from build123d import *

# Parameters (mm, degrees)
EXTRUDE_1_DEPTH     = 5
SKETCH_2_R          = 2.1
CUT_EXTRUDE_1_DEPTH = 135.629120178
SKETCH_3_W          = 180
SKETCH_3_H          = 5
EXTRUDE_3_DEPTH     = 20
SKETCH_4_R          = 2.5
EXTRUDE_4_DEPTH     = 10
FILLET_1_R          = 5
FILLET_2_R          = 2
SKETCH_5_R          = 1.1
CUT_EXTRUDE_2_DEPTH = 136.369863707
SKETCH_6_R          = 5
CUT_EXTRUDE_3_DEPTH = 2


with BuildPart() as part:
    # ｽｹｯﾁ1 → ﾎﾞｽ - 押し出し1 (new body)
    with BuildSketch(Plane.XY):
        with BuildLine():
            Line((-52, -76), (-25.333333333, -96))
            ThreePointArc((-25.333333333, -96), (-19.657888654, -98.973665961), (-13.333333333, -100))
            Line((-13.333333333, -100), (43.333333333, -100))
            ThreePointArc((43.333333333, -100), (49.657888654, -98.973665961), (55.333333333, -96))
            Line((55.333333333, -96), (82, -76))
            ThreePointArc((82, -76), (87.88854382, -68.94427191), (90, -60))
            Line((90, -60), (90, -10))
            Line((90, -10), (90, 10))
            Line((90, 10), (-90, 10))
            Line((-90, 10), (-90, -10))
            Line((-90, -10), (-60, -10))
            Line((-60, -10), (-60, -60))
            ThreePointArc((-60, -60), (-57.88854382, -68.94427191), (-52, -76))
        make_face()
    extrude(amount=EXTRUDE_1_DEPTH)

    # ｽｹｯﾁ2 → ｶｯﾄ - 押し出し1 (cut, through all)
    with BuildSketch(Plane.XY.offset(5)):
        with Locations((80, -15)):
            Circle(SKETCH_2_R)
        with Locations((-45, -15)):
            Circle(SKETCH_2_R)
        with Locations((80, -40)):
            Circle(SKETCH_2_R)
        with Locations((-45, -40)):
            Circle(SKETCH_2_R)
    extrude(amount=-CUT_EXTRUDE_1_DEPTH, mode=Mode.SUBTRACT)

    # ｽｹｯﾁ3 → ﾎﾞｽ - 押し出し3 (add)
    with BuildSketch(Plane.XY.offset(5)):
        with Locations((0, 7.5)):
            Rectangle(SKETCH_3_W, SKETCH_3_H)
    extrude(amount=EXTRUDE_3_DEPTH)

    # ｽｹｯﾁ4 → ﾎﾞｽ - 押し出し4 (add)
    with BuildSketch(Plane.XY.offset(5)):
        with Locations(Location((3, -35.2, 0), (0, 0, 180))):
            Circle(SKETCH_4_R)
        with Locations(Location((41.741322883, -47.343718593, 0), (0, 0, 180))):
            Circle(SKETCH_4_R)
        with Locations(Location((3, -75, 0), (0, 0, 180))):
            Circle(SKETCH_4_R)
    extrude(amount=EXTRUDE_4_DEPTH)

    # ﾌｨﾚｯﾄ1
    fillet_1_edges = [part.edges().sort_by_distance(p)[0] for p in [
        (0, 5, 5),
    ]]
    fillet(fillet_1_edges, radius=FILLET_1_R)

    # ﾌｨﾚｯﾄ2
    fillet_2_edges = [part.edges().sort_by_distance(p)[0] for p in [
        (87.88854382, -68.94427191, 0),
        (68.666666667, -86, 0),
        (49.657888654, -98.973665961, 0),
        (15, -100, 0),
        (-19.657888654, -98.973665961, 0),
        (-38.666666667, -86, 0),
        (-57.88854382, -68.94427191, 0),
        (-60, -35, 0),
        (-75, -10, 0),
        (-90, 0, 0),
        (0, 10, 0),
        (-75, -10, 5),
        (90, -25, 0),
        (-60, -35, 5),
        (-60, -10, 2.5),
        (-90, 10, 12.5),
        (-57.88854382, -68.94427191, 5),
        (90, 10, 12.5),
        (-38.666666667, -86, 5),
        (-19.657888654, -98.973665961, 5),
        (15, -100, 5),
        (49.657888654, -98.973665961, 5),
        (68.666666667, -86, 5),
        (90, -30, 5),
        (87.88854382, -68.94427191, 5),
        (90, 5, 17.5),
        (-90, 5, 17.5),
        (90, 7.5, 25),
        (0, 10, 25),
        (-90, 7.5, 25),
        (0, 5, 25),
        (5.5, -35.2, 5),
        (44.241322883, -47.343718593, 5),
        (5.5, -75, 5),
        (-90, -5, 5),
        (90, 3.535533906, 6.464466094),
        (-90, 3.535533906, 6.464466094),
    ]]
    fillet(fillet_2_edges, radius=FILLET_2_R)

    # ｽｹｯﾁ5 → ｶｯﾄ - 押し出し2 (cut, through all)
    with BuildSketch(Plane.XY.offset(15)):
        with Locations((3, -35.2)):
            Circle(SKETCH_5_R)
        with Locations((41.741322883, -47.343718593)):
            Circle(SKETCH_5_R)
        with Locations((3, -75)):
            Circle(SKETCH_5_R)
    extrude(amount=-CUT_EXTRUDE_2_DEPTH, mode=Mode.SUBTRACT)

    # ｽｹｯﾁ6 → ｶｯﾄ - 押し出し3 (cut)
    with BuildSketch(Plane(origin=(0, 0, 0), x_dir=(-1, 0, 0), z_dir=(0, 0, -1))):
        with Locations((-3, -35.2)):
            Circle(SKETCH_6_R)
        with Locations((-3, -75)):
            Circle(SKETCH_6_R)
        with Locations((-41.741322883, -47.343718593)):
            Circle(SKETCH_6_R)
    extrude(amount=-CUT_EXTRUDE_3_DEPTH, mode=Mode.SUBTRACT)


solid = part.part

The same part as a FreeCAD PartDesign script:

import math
import FreeCAD as App
import Part
import Sketcher
from FreeCAD import Vector
Q = App.Units.Quantity


def edges_at(feature, points):
    """Names of the edges that pass closest to the given points."""
    edges = feature.Shape.Edges
    near = lambda p: min(range(len(edges)), key=lambda i: edges[i].distToShape(Part.Vertex(*p))[0])
    return sorted({f"Edge{near(p) + 1}" for p in points})


def add_polygon(sketch, points):
    """Adds a closed chain of lines whose ends are joined by coincident constraints."""
    first, n = sketch.GeometryCount, len(points)
    for a, b in zip(points, points[1:] + points[:1]):
        sketch.addGeometry(Part.LineSegment(App.Vector(*a, 0), App.Vector(*b, 0)), False)
    for i in range(n):
        sketch.addConstraint(Sketcher.Constraint("Coincident", first + i, 2, first + (i + 1) % n, 1))

doc = App.newDocument("Part")
body = doc.addObject("PartDesign::Body", "Body")

# Sketch on XY plane
sketch1 = body.newObject("Sketcher::SketchObject", "Sketch")
sketch1.AttachmentSupport = (doc.getObject("XY_Plane"), [""])
sketch1.MapMode = "FlatFace"
sketch1.addGeometry(Part.LineSegment(Vector(-52, -76, 0), Vector(-25, -96, 0)), False)
sketch1.addGeometry(Part.ArcOfCircle(Part.Circle(Vector(-13, -80, 0), Vector(0, 0, 1), 20), math.radians(-127), math.radians(-90)), False)
sketch1.addGeometry(Part.LineSegment(Vector(-13, -100, 0), Vector(43, -100, 0)), False)
sketch1.addGeometry(Part.ArcOfCircle(Part.Circle(Vector(43, -80, 0), Vector(0, 0, 1), 20), math.radians(-90), math.radians(-53)), False)
sketch1.addGeometry(Part.LineSegment(Vector(55, -96, 0), Vector(82, -76, 0)), False)
sketch1.addGeometry(Part.ArcOfCircle(Part.Circle(Vector(70, -60, 0), Vector(0, 0, 1), 20), math.radians(-53), math.radians(0)), False)
sketch1.addGeometry(Part.LineSegment(Vector(90, -60, 0), Vector(90, 10, 0)), False)
sketch1.addGeometry(Part.LineSegment(Vector(90, 10, 0), Vector(-90, 10, 0)), False)
sketch1.addGeometry(Part.LineSegment(Vector(-90, 10, 0), Vector(-90, -10, 0)), False)
sketch1.addGeometry(Part.LineSegment(Vector(-90, -10, 0), Vector(-60, -10, 0)), False)
sketch1.addGeometry(Part.LineSegment(Vector(-60, -10, 0), Vector(-60, -60, 0)), False)
sketch1.addGeometry(Part.ArcOfCircle(Part.Circle(Vector(-40, -60, 0), Vector(0, 0, 1), 20), math.radians(180), math.radians(233)), False)
sketch1.addConstraint(Sketcher.Constraint("Tangent", 0, 2, 1, 1))
sketch1.addConstraint(Sketcher.Constraint("Tangent", 1, 2, 2, 1))
sketch1.addConstraint(Sketcher.Constraint("Tangent", 2, 2, 3, 1))
sketch1.addConstraint(Sketcher.Constraint("Tangent", 3, 2, 4, 1))
sketch1.addConstraint(Sketcher.Constraint("Tangent", 4, 2, 5, 1))
sketch1.addConstraint(Sketcher.Constraint("Tangent", 5, 2, 6, 1))
sketch1.addConstraint(Sketcher.Constraint("Coincident", 6, 2, 7, 1))
sketch1.addConstraint(Sketcher.Constraint("Coincident", 7, 2, 8, 1))
sketch1.addConstraint(Sketcher.Constraint("Coincident", 8, 2, 9, 1))
sketch1.addConstraint(Sketcher.Constraint("Coincident", 9, 2, 10, 1))
sketch1.addConstraint(Sketcher.Constraint("Tangent", 10, 2, 11, 1))
sketch1.addConstraint(Sketcher.Constraint("Tangent", 11, 2, 0, 1))
sketch1.addConstraint(Sketcher.Constraint("Horizontal", 2))
sketch1.addConstraint(Sketcher.Constraint("Vertical", 6))
sketch1.addConstraint(Sketcher.Constraint("Horizontal", 7))
sketch1.addConstraint(Sketcher.Constraint("Vertical", 8))
sketch1.addConstraint(Sketcher.Constraint("Horizontal", 9))
sketch1.addConstraint(Sketcher.Constraint("Vertical", 10))
sketch1.addConstraint(Sketcher.Constraint("Equal", 1, 3))
sketch1.addConstraint(Sketcher.Constraint("Equal", 3, 5))
sketch1.addConstraint(Sketcher.Constraint("Equal", 5, 11))
sketch1.addConstraint(Sketcher.Constraint("Symmetric", 6, 2, 8, 2, -1, 1))
sketch1.addConstraint(Sketcher.Constraint("Horizontal", 5, 3, 11, 3))
sketch1.addConstraint(Sketcher.Constraint("Horizontal", 0, 2, 3, 2))
sketch1.addConstraint(Sketcher.Constraint("Radius", 1, Q("20 mm")))
sketch1.addConstraint(Sketcher.Constraint("DistanceX", 7, 2, 7, 1, Q("180 mm")))
sketch1.addConstraint(Sketcher.Constraint("DistanceX", 9, 1, 9, 2, Q("30 mm")))
sketch1.addConstraint(Sketcher.Constraint("DistanceY", 6, 1, 6, 2, Q("70 mm")))
sketch1.addConstraint(Sketcher.Constraint("DistanceY", 8, 2, 8, 1, Q("20 mm")))
sketch1.addConstraint(Sketcher.Constraint("DistanceY", 1, 3, -1, 1, Q("80 mm")))
sketch1.addConstraint(Sketcher.Constraint("DistanceY", 0, 2, -1, 1, Q("96 mm")))
pad1 = body.newObject("PartDesign::Pad", "Pad")
pad1.Profile = sketch1
pad1.Length = 5

# Sketch on XY plane
sketch2 = body.newObject("Sketcher::SketchObject", "Sketch001")
sketch2.AttachmentSupport = (doc.getObject("XY_Plane"), [""])
sketch2.MapMode = "FlatFace"
sketch2.AttachmentOffset = App.Placement(Vector(0, 0, 5), App.Rotation())
sketch2.addGeometry(Part.Circle(Vector(80, -15, 0), Vector(0, 0, 1), 2.1), False)
sketch2.addGeometry(Part.Circle(Vector(-45, -15, 0), Vector(0, 0, 1), 2.1), False)
sketch2.addGeometry(Part.Circle(Vector(80, -40, 0), Vector(0, 0, 1), 2.1), False)
sketch2.addGeometry(Part.Circle(Vector(-45, -40, 0), Vector(0, 0, 1), 2.1), False)
sketch2.addConstraint(Sketcher.Constraint("Equal", 0, 1))
sketch2.addConstraint(Sketcher.Constraint("Equal", 1, 2))
sketch2.addConstraint(Sketcher.Constraint("Equal", 2, 3))
sketch2.addConstraint(Sketcher.Constraint("Horizontal", 0, 3, 1, 3))
sketch2.addConstraint(Sketcher.Constraint("Horizontal", 2, 3, 3, 3))
sketch2.addConstraint(Sketcher.Constraint("Vertical", 0, 3, 2, 3))
sketch2.addConstraint(Sketcher.Constraint("Vertical", 1, 3, 3, 3))
sketch2.addConstraint(Sketcher.Constraint("Diameter", 0, Q("4.2 mm")))
sketch2.addConstraint(Sketcher.Constraint("DistanceX", -1, 1, 0, 3, Q("80 mm")))
sketch2.addConstraint(Sketcher.Constraint("DistanceY", 0, 3, -1, 1, Q("15 mm")))
sketch2.addConstraint(Sketcher.Constraint("DistanceX", 1, 3, -1, 1, Q("45 mm")))
sketch2.addConstraint(Sketcher.Constraint("DistanceY", 2, 3, -1, 1, Q("40 mm")))
pocket1 = body.newObject("PartDesign::Pocket", "Pocket")
pocket1.Profile = sketch2
pocket1.Type = "ThroughAll"

# Sketch on XY plane
sketch3 = body.newObject("Sketcher::SketchObject", "Sketch002")
sketch3.AttachmentSupport = (doc.getObject("XY_Plane"), [""])
sketch3.MapMode = "FlatFace"
sketch3.AttachmentOffset = App.Placement(Vector(0, 0, 5), App.Rotation())
add_polygon(sketch3, [(-90, 10), (-90, 5), (90, 5), (90, 10)])  # lines 0-3
sketch3.addConstraint(Sketcher.Constraint("Vertical", 0))
sketch3.addConstraint(Sketcher.Constraint("Horizontal", 1))
sketch3.addConstraint(Sketcher.Constraint("Vertical", 2))
sketch3.addConstraint(Sketcher.Constraint("Horizontal", 3))
sketch3.addConstraint(Sketcher.Constraint("DistanceX", 1, 1, 1, 2, Q("180 mm")))
sketch3.addConstraint(Sketcher.Constraint("DistanceY", 0, 2, 0, 1, Q("5 mm")))
sketch3.addConstraint(Sketcher.Constraint("DistanceX", 0, 2, -1, 1, Q("90 mm")))
sketch3.addConstraint(Sketcher.Constraint("DistanceY", -1, 1, 0, 2, Q("5 mm")))
pad2 = body.newObject("PartDesign::Pad", "Pad001")
pad2.Profile = sketch3
pad2.Length = 20

# Sketch on XY plane
sketch4 = body.newObject("Sketcher::SketchObject", "Sketch003")
sketch4.AttachmentSupport = (doc.getObject("XY_Plane"), [""])
sketch4.MapMode = "FlatFace"
sketch4.AttachmentOffset = App.Placement(Vector(0, 0, 5), App.Rotation())
sketch4.addGeometry(Part.Circle(Vector(3, -35.2, 0), Vector(0, 0, 1), 2.5), False)
sketch4.addGeometry(Part.Circle(Vector(41.7, -47.3, 0), Vector(0, 0, 1), 2.5), False)
sketch4.addGeometry(Part.Circle(Vector(3, -75, 0), Vector(0, 0, 1), 2.5), False)
sketch4.addConstraint(Sketcher.Constraint("Equal", 0, 1))
sketch4.addConstraint(Sketcher.Constraint("Equal", 1, 2))
sketch4.addConstraint(Sketcher.Constraint("Vertical", 0, 3, 2, 3))
sketch4.addConstraint(Sketcher.Constraint("Diameter", 0, Q("5 mm")))
sketch4.addConstraint(Sketcher.Constraint("DistanceX", -1, 1, 0, 3, Q("3 mm")))
sketch4.addConstraint(Sketcher.Constraint("DistanceY", 2, 3, -1, 1, Q("75 mm")))
sketch4.addConstraint(Sketcher.Constraint("DistanceY", 0, 3, -1, 1, Q("35.2 mm")))
sketch4.addConstraint(Sketcher.Constraint("DistanceY", 1, 3, -1, 1, Q("47.343719 mm")))
sketch4.addConstraint(Sketcher.Constraint("DistanceX", -1, 1, 1, 3, Q("41.741323 mm")))
pad3 = body.newObject("PartDesign::Pad", "Pad002")
pad3.Profile = sketch4
pad3.Length = 10
doc.recompute()

fillet = body.newObject("PartDesign::Fillet", "Fillet")
fillet.Base = (pad3, edges_at(pad3, [(0, 5, 5)]))
fillet.Radius = 5
doc.recompute()

fillet2 = body.newObject("PartDesign::Fillet", "Fillet001")
fillet2.Base = (fillet, edges_at(fillet, [
    (87.889, -68.944, 0),
    (68.667, -86, 0),
    (49.658, -98.974, 0),
    (15, -100, 0),
    (-19.658, -98.974, 0),
    (-38.667, -86, 0),
    (-57.889, -68.944, 0),
    (-60, -35, 0),
    (-75, -10, 0),
    (-90, 0, 0),
    (0, 10, 0),
    (-75, -10, 5),
    (90, -25, 0),
    (-60, -35, 5),
    (-60, -10, 2.5),
    (-90, 10, 12.5),
    (-57.889, -68.944, 5),
    (90, 10, 12.5),
    (-38.667, -86, 5),
    (-19.658, -98.974, 5),
    (15, -100, 5),
    (49.658, -98.974, 5),
    (68.667, -86, 5),
    (90, -30, 5),
    (87.889, -68.944, 5),
    (90, 5, 17.5),
    (-90, 5, 17.5),
    (90, 7.5, 25),
    (0, 10, 25),
    (-90, 7.5, 25),
    (0, 5, 25),
    (5.5, -35.2, 5),
    (44.241, -47.344, 5),
    (5.5, -75, 5),
    (-90, -5, 5),
    (90, 3.536, 6.464),
    (-90, 3.536, 6.464),
]))
fillet2.Radius = 2

# Sketch on XY plane
sketch5 = body.newObject("Sketcher::SketchObject", "Sketch004")
sketch5.AttachmentSupport = (doc.getObject("XY_Plane"), [""])
sketch5.MapMode = "FlatFace"
sketch5.AttachmentOffset = App.Placement(Vector(0, 0, 15), App.Rotation())
sketch5.addGeometry(Part.Circle(Vector(3, -35.2, 0), Vector(0, 0, 1), 1.1), False)
sketch5.addGeometry(Part.Circle(Vector(41.7, -47.3, 0), Vector(0, 0, 1), 1.1), False)
sketch5.addGeometry(Part.Circle(Vector(3, -75, 0), Vector(0, 0, 1), 1.1), False)
sketch5.addConstraint(Sketcher.Constraint("Equal", 0, 1))
sketch5.addConstraint(Sketcher.Constraint("Equal", 1, 2))
sketch5.addConstraint(Sketcher.Constraint("Vertical", 0, 3, 2, 3))
sketch5.addConstraint(Sketcher.Constraint("Diameter", 0, Q("2.2 mm")))
sketch5.addConstraint(Sketcher.Constraint("DistanceX", -1, 1, 0, 3, Q("3 mm")))
sketch5.addConstraint(Sketcher.Constraint("DistanceY", 2, 3, -1, 1, Q("75 mm")))
sketch5.addConstraint(Sketcher.Constraint("DistanceY", 0, 3, -1, 1, Q("35.2 mm")))
sketch5.addConstraint(Sketcher.Constraint("DistanceY", 1, 3, -1, 1, Q("47.343719 mm")))
sketch5.addConstraint(Sketcher.Constraint("DistanceX", -1, 1, 1, 3, Q("41.741323 mm")))
pocket2 = body.newObject("PartDesign::Pocket", "Pocket001")
pocket2.Profile = sketch5
pocket2.Type = "ThroughAll"

# Sketch on XY plane
sketch6 = body.newObject("Sketcher::SketchObject", "Sketch005")
sketch6.AttachmentSupport = (doc.getObject("XY_Plane"), [""])
sketch6.MapMode = "FlatFace"
sketch6.addGeometry(Part.Circle(Vector(3, -35, 0), Vector(0, 0, 1), 5), False)
sketch6.addGeometry(Part.Circle(Vector(3, -75, 0), Vector(0, 0, 1), 5), False)
sketch6.addGeometry(Part.Circle(Vector(42, -47, 0), Vector(0, 0, 1), 5), False)
sketch6.addConstraint(Sketcher.Constraint("Equal", 0, 1))
sketch6.addConstraint(Sketcher.Constraint("Equal", 1, 2))
sketch6.addConstraint(Sketcher.Constraint("Vertical", 0, 3, 1, 3))
sketch6.addConstraint(Sketcher.Constraint("Diameter", 0, Q("10 mm")))
sketch6.addConstraint(Sketcher.Constraint("DistanceX", -1, 1, 0, 3, Q("3 mm")))
sketch6.addConstraint(Sketcher.Constraint("DistanceY", 1, 3, -1, 1, Q("75 mm")))
sketch6.addConstraint(Sketcher.Constraint("DistanceY", 0, 3, -1, 1, Q("35.2 mm")))
sketch6.addConstraint(Sketcher.Constraint("DistanceY", 2, 3, -1, 1, Q("47.343719 mm")))
sketch6.addConstraint(Sketcher.Constraint("DistanceX", -1, 1, 2, 3, Q("41.741323 mm")))
pocket3 = body.newObject("PartDesign::Pocket", "Pocket002")
pocket3.Profile = sketch6
pocket3.Length = 2
pocket3.Reversed = True

doc.recompute()
